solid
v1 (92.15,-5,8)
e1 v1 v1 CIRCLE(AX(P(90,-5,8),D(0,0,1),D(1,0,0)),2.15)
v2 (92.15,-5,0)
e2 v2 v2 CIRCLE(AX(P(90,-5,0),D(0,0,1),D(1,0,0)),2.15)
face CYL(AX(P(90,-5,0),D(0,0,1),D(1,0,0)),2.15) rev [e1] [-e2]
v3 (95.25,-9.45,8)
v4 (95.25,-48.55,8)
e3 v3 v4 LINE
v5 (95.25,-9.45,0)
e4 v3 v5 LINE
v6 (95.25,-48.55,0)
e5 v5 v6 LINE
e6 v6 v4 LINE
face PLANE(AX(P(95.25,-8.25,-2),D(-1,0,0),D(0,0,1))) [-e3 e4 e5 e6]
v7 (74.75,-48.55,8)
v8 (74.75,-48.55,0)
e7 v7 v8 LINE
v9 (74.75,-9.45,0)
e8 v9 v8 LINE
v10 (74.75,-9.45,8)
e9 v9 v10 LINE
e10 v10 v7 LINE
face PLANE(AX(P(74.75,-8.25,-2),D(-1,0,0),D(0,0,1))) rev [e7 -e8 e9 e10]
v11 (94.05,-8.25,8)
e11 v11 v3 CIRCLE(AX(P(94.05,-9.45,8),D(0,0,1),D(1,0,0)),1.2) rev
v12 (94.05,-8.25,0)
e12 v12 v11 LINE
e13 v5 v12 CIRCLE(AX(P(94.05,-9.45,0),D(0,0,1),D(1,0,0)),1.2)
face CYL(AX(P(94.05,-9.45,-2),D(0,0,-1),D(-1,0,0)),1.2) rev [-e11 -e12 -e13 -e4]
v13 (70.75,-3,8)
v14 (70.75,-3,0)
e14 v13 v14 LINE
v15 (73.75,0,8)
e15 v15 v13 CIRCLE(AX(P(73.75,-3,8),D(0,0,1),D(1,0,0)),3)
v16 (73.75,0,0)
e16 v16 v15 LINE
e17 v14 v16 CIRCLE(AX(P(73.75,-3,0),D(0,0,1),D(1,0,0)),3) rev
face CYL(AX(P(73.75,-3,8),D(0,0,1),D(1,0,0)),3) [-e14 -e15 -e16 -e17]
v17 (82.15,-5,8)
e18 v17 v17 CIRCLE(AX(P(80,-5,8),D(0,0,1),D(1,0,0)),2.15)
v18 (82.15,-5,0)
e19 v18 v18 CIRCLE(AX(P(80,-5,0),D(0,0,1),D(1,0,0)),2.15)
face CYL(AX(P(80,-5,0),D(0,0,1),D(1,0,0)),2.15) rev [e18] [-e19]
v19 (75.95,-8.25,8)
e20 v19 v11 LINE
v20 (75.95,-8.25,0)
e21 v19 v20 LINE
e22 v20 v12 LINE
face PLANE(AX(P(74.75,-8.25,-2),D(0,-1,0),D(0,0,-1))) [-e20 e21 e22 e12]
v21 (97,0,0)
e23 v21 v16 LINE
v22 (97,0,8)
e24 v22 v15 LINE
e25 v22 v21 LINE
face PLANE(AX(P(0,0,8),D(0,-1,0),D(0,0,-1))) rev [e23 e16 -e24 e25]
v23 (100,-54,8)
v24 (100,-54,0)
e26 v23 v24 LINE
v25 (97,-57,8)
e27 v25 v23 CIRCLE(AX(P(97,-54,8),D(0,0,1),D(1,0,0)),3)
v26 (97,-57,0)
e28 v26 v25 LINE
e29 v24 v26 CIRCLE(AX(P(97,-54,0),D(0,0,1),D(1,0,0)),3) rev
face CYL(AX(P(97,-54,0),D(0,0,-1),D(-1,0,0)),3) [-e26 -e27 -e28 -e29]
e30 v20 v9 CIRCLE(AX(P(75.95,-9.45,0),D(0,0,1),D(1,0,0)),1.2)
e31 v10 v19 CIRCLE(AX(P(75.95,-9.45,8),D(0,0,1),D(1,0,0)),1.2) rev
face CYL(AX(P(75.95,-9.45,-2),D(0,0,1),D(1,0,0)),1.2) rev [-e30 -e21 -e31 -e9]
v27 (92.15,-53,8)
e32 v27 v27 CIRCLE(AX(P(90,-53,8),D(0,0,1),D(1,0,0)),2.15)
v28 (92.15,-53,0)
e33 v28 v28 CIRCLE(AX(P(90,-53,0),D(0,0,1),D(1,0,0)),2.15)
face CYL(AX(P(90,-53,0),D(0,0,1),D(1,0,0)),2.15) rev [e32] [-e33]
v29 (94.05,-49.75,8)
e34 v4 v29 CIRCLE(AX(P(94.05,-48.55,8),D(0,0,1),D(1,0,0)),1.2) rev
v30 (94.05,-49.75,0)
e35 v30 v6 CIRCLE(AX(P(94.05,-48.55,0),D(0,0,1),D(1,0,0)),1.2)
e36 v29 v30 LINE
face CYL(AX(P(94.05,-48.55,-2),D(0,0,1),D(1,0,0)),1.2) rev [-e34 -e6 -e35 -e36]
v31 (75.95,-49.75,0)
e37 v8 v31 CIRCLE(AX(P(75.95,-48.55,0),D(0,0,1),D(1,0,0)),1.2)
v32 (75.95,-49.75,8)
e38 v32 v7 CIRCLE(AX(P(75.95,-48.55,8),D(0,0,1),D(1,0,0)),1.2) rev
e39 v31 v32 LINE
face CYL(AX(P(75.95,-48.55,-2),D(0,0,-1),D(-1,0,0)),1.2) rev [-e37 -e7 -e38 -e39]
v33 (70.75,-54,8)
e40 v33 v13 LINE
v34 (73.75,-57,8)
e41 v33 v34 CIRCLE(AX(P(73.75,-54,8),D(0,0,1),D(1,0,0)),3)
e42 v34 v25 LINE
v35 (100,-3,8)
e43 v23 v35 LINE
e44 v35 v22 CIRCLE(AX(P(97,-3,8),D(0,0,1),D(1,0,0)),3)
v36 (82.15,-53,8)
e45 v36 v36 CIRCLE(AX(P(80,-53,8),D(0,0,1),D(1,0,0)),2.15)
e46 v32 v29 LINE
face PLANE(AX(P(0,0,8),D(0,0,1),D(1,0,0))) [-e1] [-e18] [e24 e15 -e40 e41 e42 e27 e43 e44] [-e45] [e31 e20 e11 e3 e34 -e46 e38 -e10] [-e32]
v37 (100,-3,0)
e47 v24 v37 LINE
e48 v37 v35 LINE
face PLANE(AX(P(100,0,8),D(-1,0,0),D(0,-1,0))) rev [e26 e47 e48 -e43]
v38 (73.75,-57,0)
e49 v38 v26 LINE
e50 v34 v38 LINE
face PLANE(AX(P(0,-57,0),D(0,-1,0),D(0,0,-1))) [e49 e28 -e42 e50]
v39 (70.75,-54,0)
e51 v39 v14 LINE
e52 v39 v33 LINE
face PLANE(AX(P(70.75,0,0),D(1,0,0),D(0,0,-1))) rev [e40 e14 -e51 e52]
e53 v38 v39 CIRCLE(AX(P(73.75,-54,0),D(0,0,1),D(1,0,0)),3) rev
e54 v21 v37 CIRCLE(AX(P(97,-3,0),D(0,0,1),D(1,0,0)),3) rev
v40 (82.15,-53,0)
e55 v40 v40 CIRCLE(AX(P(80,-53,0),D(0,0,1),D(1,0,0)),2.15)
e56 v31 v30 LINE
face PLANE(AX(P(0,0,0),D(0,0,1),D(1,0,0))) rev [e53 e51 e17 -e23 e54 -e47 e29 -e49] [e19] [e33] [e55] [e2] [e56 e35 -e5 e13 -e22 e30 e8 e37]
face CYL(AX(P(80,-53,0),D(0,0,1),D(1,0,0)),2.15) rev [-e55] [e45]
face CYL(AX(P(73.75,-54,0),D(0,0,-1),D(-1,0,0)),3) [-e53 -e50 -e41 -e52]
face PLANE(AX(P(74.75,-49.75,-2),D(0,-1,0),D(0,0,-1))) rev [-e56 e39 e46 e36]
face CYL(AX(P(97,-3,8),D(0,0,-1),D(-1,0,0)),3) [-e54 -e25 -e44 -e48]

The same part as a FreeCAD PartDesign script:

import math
import FreeCAD as App
import Part
import Sketcher

V = App.Vector


def edges_at(feature, points):
    """Names of the edges that pass closest to the given points."""
    edges = feature.Shape.Edges
    near = lambda p: min(range(len(edges)), key=lambda i: edges[i].distToShape(Part.Vertex(*p))[0])
    return sorted({f"Edge{near(p) + 1}" for p in points})

doc = App.newDocument("Part")
body = doc.addObject("PartDesign::Body", "Body")

# Sketch on XY plane
sketch1 = doc.addObject("Sketcher::SketchObject", "Sketch")
body.addObject(sketch1)
sketch1.AttachmentSupport = (doc.XY_Plane, [""])
sketch1.MapMode = "FlatFace"
sketch1.addGeometry(Part.LineSegment(V(0, 0, 0), V(0, -100, 0)), False)
sketch1.addGeometry(Part.LineSegment(V(0, -100, 0), V(100, -100, 0)), False)
sketch1.addGeometry(Part.LineSegment(V(100, -100, 0), V(100, 0, 0)), False)
sketch1.addGeometry(Part.LineSegment(V(100, 0, 0), V(0, 0, 0)), False)
sketch1.addConstraint(Sketcher.Constraint("Coincident", 0, 2, 1, 1))
sketch1.addConstraint(Sketcher.Constraint("Coincident", 1, 2, 2, 1))
sketch1.addConstraint(Sketcher.Constraint("Coincident", 2, 2, 3, 1))
sketch1.addConstraint(Sketcher.Constraint("Coincident", 3, 2, 0, 1))
sketch1.addConstraint(Sketcher.Constraint("Vertical", 0))
sketch1.addConstraint(Sketcher.Constraint("Horizontal", 1))
sketch1.addConstraint(Sketcher.Constraint("Vertical", 2))
sketch1.addConstraint(Sketcher.Constraint("Horizontal", 3))
sketch1.addConstraint(Sketcher.Constraint("Coincident", 3, 2, -1, 1))
sketch1.addConstraint(Sketcher.Constraint("Equal", 3, 0))
sketch1.addConstraint(Sketcher.Constraint("DistanceX", 1, 1, 1, 2, 100.0))
pad1 = doc.addObject("PartDesign::Pad", "Pad")
body.addObject(pad1)
pad1.Profile = sketch1
pad1.Length = 8

# Sketch on XY plane
sketch2 = doc.addObject("Sketcher::SketchObject", "Sketch001")
body.addObject(sketch2)
sketch2.AttachmentSupport = (doc.XY_Plane, [""])
sketch2.MapMode = "FlatFace"
sketch2.AttachmentOffset = App.Placement(V(0, 0, 8), App.Rotation())
sketch2.addGeometry(Part.Circle(V(80, -53, 0), V(0, 0, 1), 2.1), False)
sketch2.addGeometry(Part.Circle(V(90, -53, 0), V(0, 0, 1), 2.1), False)
sketch2.addGeometry(Part.Circle(V(90, -5, 0), V(0, 0, 1), 2.1), False)
sketch2.addGeometry(Part.Circle(V(80, -5, 0), V(0, 0, 1), 2.1), False)
sketch2.addConstraint(Sketcher.Constraint("Equal", 0, 1))
sketch2.addConstraint(Sketcher.Constraint("Equal", 1, 2))
sketch2.addConstraint(Sketcher.Constraint("Equal", 2, 3))
sketch2.addConstraint(Sketcher.Constraint("Horizontal", 0, 3, 1, 3))
sketch2.addConstraint(Sketcher.Constraint("Horizontal", 2, 3, 3, 3))
sketch2.addConstraint(Sketcher.Constraint("Vertical", 1, 3, 2, 3))
sketch2.addConstraint(Sketcher.Constraint("Vertical", 0, 3, 3, 3))
sketch2.addConstraint(Sketcher.Constraint("Diameter", 0, 4.3))
sketch2.addConstraint(Sketcher.Constraint("DistanceX", -1, 1, 0, 3, 80.0))
sketch2.addConstraint(Sketcher.Constraint("DistanceY", 0, 3, -1, 1, 53.0))
sketch2.addConstraint(Sketcher.Constraint("DistanceX", -1, 1, 1, 3, 90.0))
sketch2.addConstraint(Sketcher.Constraint("DistanceY", 2, 3, -1, 1, 5.0))
pocket1 = doc.addObject("PartDesign::Pocket", "Pocket")
body.addObject(pocket1)
pocket1.Profile = sketch2
pocket1.Type = "ThroughAll"

# Sketch on XY plane
sketch3 = doc.addObject("Sketcher::SketchObject", "Sketch002")
body.addObject(sketch3)
sketch3.AttachmentSupport = (doc.XY_Plane, [""])
sketch3.MapMode = "FlatFace"
sketch3.AttachmentOffset = App.Placement(V(0, 0, 8), App.Rotation())
sketch3.addGeometry(Part.Circle(V(73, -95, 0), V(0, 0, 1), 2.1), False)
sketch3.addGeometry(Part.Circle(V(73, -85, 0), V(0, 0, 1), 2.1), False)
sketch3.addGeometry(Part.Circle(V(85, -85, 0), V(0, 0, 1), 2.1), False)
sketch3.addGeometry(Part.Circle(V(85, -95, 0), V(0, 0, 1), 2.1), False)
sketch3.addConstraint(Sketcher.Constraint("Equal", 0, 1))
sketch3.addConstraint(Sketcher.Constraint("Equal", 1, 2))
sketch3.addConstraint(Sketcher.Constraint("Equal", 2, 3))
sketch3.addConstraint(Sketcher.Constraint("Horizontal", 1, 3, 2, 3))
sketch3.addConstraint(Sketcher.Constraint("Horizontal", 0, 3, 3, 3))
sketch3.addConstraint(Sketcher.Constraint("Vertical", 0, 3, 1, 3))
sketch3.addConstraint(Sketcher.Constraint("Vertical", 2, 3, 3, 3))
sketch3.addConstraint(Sketcher.Constraint("Diameter", 0, 4.3))
sketch3.addConstraint(Sketcher.Constraint("DistanceX", -1, 1, 0, 3, 73.0))
sketch3.addConstraint(Sketcher.Constraint("DistanceY", 0, 3, -1, 1, 95.0))
sketch3.addConstraint(Sketcher.Constraint("DistanceY", 1, 3, -1, 1, 85.0))
sketch3.addConstraint(Sketcher.Constraint("DistanceX", -1, 1, 2, 3, 85.0))
pocket2 = doc.addObject("PartDesign::Pocket", "Pocket001")
body.addObject(pocket2)
pocket2.Profile = sketch3
pocket2.Type = "ThroughAll"

# Sketch on XY plane
sketch4 = doc.addObject("Sketcher::SketchObject", "Sketch003")
body.addObject(sketch4)
sketch4.AttachmentSupport = (doc.XY_Plane, [""])
sketch4.MapMode = "FlatFace"
sketch4.AttachmentOffset = App.Placement(V(0, 0, 8), App.Rotation())
sketch4.addGeometry(Part.ArcOfCircle(Part.Circle(V(71.5, -100, 0), V(0, 0, 1), 9.5), math.radians(0), math.radians(180)), False)
sketch4.addGeometry(Part.LineSegment(V(62, -100, 0), V(81, -100, 0)), False)
sketch4.addGeometry(Part.Circle(V(73, -95, 0), V(0, 0, 1), 2.1), False)
sketch4.addConstraint(Sketcher.Constraint("Coincident", 0, 1, 1, 2))
sketch4.addConstraint(Sketcher.Constraint("Coincident", 1, 1, 0, 2))
sketch4.addConstraint(Sketcher.Constraint("Horizontal", 1))
sketch4.addConstraint(Sketcher.Constraint("Diameter", 2, 4.3))
sketch4.addConstraint(Sketcher.Constraint("Radius", 0, 9.5))
sketch4.addConstraint(Sketcher.Constraint("DistanceY", 0, 3, -1, 1, 100.0))
sketch4.addConstraint(Sketcher.Constraint("DistanceX", -1, 1, 2, 3, 73.0))
sketch4.addConstraint(Sketcher.Constraint("DistanceY", 2, 3, -1, 1, 95.0))
sketch4.addConstraint(Sketcher.Constraint("DistanceX", -1, 1, 0, 1, 81.0))
sketch4.addConstraint(Sketcher.Constraint("DistanceY", 0, 1, -1, 1, 100.0))
pocket3 = doc.addObject("PartDesign::Pocket", "Pocket002")
body.addObject(pocket3)
pocket3.Profile = sketch4
pocket3.Type = "ThroughAll"

# Sketch on XY plane
sketch5 = doc.addObject("Sketcher::SketchObject", "Sketch004")
body.addObject(sketch5)
sketch5.AttachmentSupport = (doc.XY_Plane, [""])
sketch5.MapMode = "FlatFace"
sketch5.AttachmentOffset = App.Placement(V(0, 0, 8), App.Rotation())
sketch5.addGeometry(Part.LineSegment(V(75, -8, 0), V(75, -50, 0)), False)
sketch5.addGeometry(Part.LineSegment(V(75, -50, 0), V(95, -50, 0)), False)
sketch5.addGeometry(Part.LineSegment(V(95, -50, 0), V(95, -8, 0)), False)
sketch5.addGeometry(Part.LineSegment(V(95, -8, 0), V(75, -8, 0)), False)
sketch5.addConstraint(Sketcher.Constraint("Coincident", 0, 2, 1, 1))
sketch5.addConstraint(Sketcher.Constraint("Coincident", 1, 2, 2, 1))
sketch5.addConstraint(Sketcher.Constraint("Coincident", 2, 2, 3, 1))
sketch5.addConstraint(Sketcher.Constraint("Coincident", 3, 2, 0, 1))
sketch5.addConstraint(Sketcher.Constraint("Vertical", 0))
sketch5.addConstraint(Sketcher.Constraint("Horizontal", 1))
sketch5.addConstraint(Sketcher.Constraint("Vertical", 2))
sketch5.addConstraint(Sketcher.Constraint("Horizontal", 3))
sketch5.addConstraint(Sketcher.Constraint("DistanceX", 1, 1, 1, 2, 20.5))
sketch5.addConstraint(Sketcher.Constraint("DistanceY", 0, 2, 0, 1, 41.5))
sketch5.addConstraint(Sketcher.Constraint("DistanceX", -1, 1, 0, 2, 74.75))
sketch5.addConstraint(Sketcher.Constraint("DistanceY", 0, 2, -1, 1, 49.75))
pocket4 = doc.addObject("PartDesign::Pocket", "Pocket003")
body.addObject(pocket4)
pocket4.Profile = sketch5
pocket4.Length = 10

# Sketch on XY plane
sketch6 = doc.addObject("Sketcher::SketchObject", "Sketch005")
body.addObject(sketch6)
sketch6.AttachmentSupport = (doc.XY_Plane, [""])
sketch6.MapMode = "FlatFace"
sketch6.AttachmentOffset = App.Placement(V(0, 0, 8), App.Rotation())
sketch6.addGeometry(Part.LineSegment(V(0, 0, 0), V(0, -100, 0)), False)
sketch6.addGeometry(Part.LineSegment(V(0, -100, 0), V(55, -100, 0)), False)
sketch6.addGeometry(Part.LineSegment(V(55, -100, 0), V(55, 0, 0)), False)
sketch6.addGeometry(Part.LineSegment(V(55, 0, 0), V(0, 0, 0)), False)
sketch6.addConstraint(Sketcher.Constraint("Coincident", 0, 2, 1, 1))
sketch6.addConstraint(Sketcher.Constraint("Coincident", 1, 2, 2, 1))
sketch6.addConstraint(Sketcher.Constraint("Coincident", 2, 2, 3, 1))
sketch6.addConstraint(Sketcher.Constraint("Coincident", 3, 2, 0, 1))
sketch6.addConstraint(Sketcher.Constraint("Vertical", 0))
sketch6.addConstraint(Sketcher.Constraint("Horizontal", 1))
sketch6.addConstraint(Sketcher.Constraint("Vertical", 2))
sketch6.addConstraint(Sketcher.Constraint("Horizontal", 3))
sketch6.addConstraint(Sketcher.Constraint("Coincident", 3, 2, -1, 1))
sketch6.addConstraint(Sketcher.Constraint("DistanceX", 1, 1, 1, 2, 55.0))
sketch6.addConstraint(Sketcher.Constraint("DistanceY", 0, 2, 0, 1, 100.0))
pocket5 = doc.addObject("PartDesign::Pocket", "Pocket004")
body.addObject(pocket5)
pocket5.Profile = sketch6
pocket5.Length = 10
doc.recompute()

fillet = doc.addObject("PartDesign::Fillet", "Fillet")
body.addObject(fillet)
fillet.Base = (pocket5, edges_at(pocket5, [
    (95.25, -49.75, 4),
    (74.75, -49.75, 4),
    (74.75, -8.25, 4),
    (95.25, -8.25, 4),
]))
fillet.Radius = 1.2

# Sketch on XY plane
sketch7 = doc.addObject("Sketcher::SketchObject", "Sketch006")
body.addObject(sketch7)
sketch7.AttachmentSupport = (doc.XY_Plane, [""])
sketch7.MapMode = "FlatFace"
sketch7.AttachmentOffset = App.Placement(V(0, 0, 8), App.Rotation())
sketch7.addGeometry(Part.Circle(V(59, -84, 0), V(0, 0, 1), 1.6), False)
sketch7.addConstraint(Sketcher.Constraint("Diameter", 0, 3.3))
sketch7.addConstraint(Sketcher.Constraint("DistanceX", -1, 1, 0, 3, 59.0))
sketch7.addConstraint(Sketcher.Constraint("DistanceY", 0, 3, -1, 1, 84.0))
pocket6 = doc.addObject("PartDesign::Pocket", "Pocket005")
body.addObject(pocket6)
pocket6.Profile = sketch7
pocket6.Type = "ThroughAll"

# Sketch on XY plane
sketch8 = doc.addObject("Sketcher::SketchObject", "Sketch007")
body.addObject(sketch8)
sketch8.AttachmentSupport = (doc.XY_Plane, [""])
sketch8.MapMode = "FlatFace"
sketch8.AttachmentOffset = App.Placement(V(0, 0, 8), App.Rotation())
sketch8.addGeometry(Part.LineSegment(V(72, -90, 0), V(55, -90, 0)), False)
sketch8.addGeometry(Part.LineSegment(V(55, -90, 0), V(55, -100, 0)), False)
sketch8.addGeometry(Part.LineSegment(V(55, -100, 0), V(62, -100, 0)), False)
sketch8.addGeometry(Part.ArcOfCircle(Part.Circle(V(72, -100, 0), V(0, 0, 1), 10), math.radians(90), math.radians(180)), False)
sketch8.addGeometry(Part.LineSegment(V(55, 0, 0), V(55, -78, 0)), False)
sketch8.addGeometry(Part.LineSegment(V(55, -78, 0), V(71, -78, 0)), False)
sketch8.addGeometry(Part.LineSegment(V(71, -78, 0), V(71, 0, 0)), False)
sketch8.addGeometry(Part.LineSegment(V(71, 0, 0), V(55, 0, 0)), False)
sketch8.addConstraint(Sketcher.Constraint("Coincident", 0, 2, 1, 1))
sketch8.addConstraint(Sketcher.Constraint("Coincident", 1, 2, 2, 1))
sketch8.addConstraint(Sketcher.Constraint("Coincident", 2, 2, 3, 2))
sketch8.addConstraint(Sketcher.Constraint("Tangent", 3, 1, 0, 1))
sketch8.addConstraint(Sketcher.Constraint("Coincident", 4, 2, 5, 1))
sketch8.addConstraint(Sketcher.Constraint("Coincident", 5, 2, 6, 1))
sketch8.addConstraint(Sketcher.Constraint("Coincident", 6, 2, 7, 1))
sketch8.addConstraint(Sketcher.Constraint("Coincident", 7, 2, 4, 1))
sketch8.addConstraint(Sketcher.Constraint("Horizontal", 0))
sketch8.addConstraint(Sketcher.Constraint("Vertical", 1))
sketch8.addConstraint(Sketcher.Constraint("Horizontal", 2))
sketch8.addConstraint(Sketcher.Constraint("Vertical", 4))
sketch8.addConstraint(Sketcher.Constraint("Horizontal", 5))
sketch8.addConstraint(Sketcher.Constraint("Vertical", 6))
sketch8.addConstraint(Sketcher.Constraint("Horizontal", 7))
sketch8.addConstraint(Sketcher.Constraint("PointOnObject", 6, 2, -1))
sketch8.addConstraint(Sketcher.Constraint("Horizontal", 3, 3, 1, 2))
sketch8.addConstraint(Sketcher.Constraint("Vertical", 1, 2, 4, 2))
sketch8.addConstraint(Sketcher.Constraint("Radius", 3, 9.5))
sketch8.addConstraint(Sketcher.Constraint("DistanceX", 2, 1, 2, 2, 7.0))
sketch8.addConstraint(Sketcher.Constraint("DistanceY", 4, 2, 4, 1, 78.5))
sketch8.addConstraint(Sketcher.Constraint("DistanceY", 3, 3, -1, 1, 100.0))
sketch8.addConstraint(Sketcher.Constraint("DistanceX", -1, 1, 0, 2, 55.0))
sketch8.addConstraint(Sketcher.Constraint("DistanceX", 5, 1, 5, 2, 15.75))
pocket7 = doc.addObject("PartDesign::Pocket", "Pocket006")
body.addObject(pocket7)
pocket7.Profile = sketch8
pocket7.Type = "ThroughAll"
doc.recompute()

fillet2 = doc.addObject("PartDesign::Fillet", "Fillet001")
body.addObject(fillet2)
fillet2.Base = (pocket7, edges_at(pocket7, [(70.75, -78.5, 4)]))
fillet2.Radius = 10
doc.recompute()

fillet3 = doc.addObject("PartDesign::Fillet", "Fillet002")
body.addObject(fillet3)
fillet3.Base = (fillet2, edges_at(fillet2, [
    (55, -90.5, 4),
    (55, -78.5, 4),
    (70.75, 0, 4),
    (81, -100, 4),
    (100, 0, 4),
    (100, -100, 4),
]))
fillet3.Radius = 3

# Sketch on XY plane
sketch9 = doc.addObject("Sketcher::SketchObject", "Sketch008")
body.addObject(sketch9)
sketch9.AttachmentSupport = (doc.XY_Plane, [""])
sketch9.MapMode = "FlatFace"
sketch9.AttachmentOffset = App.Placement(V(0, 0, 8), App.Rotation())
sketch9.addGeometry(Part.LineSegment(V(100, -57, 0), V(70.8, -57, 0)), False)
sketch9.addGeometry(Part.LineSegment(V(70.8, -57, 0), V(70.8, -68.5, 0)), False)
sketch9.addGeometry(Part.ArcOfCircle(Part.Circle(V(60.8, -68.5, 0), V(0, 0, 1), 10), math.radians(-90), math.radians(0)), False)
sketch9.addGeometry(Part.LineSegment(V(60.8, -78.5, 0), V(58, -78.5, 0)), False)
sketch9.addGeometry(Part.ArcOfCircle(Part.Circle(V(58, -81.5, 0), V(0, 0, 1), 3), math.radians(90), math.radians(180)), False)
sketch9.addGeometry(Part.LineSegment(V(55, -81.5, 0), V(55, -87.5, 0)), False)
sketch9.addGeometry(Part.ArcOfCircle(Part.Circle(V(58, -87.5, 0), V(0, 0, 1), 3), math.radians(180), math.radians(270)), False)
sketch9.addGeometry(Part.LineSegment(V(58, -90.5, 0), V(71.5, -90.5, 0)), False)
sketch9.addGeometry(Part.ArcOfCircle(Part.Circle(V(71.5, -100, 0), V(0, 0, 1), 9.5), math.radians(14), math.radians(90)), False)
sketch9.addGeometry(Part.ArcOfCircle(Part.Circle(V(83.6, -97, 0), V(0, 0, 1), 3), math.radians(-166), math.radians(-90)), False)
sketch9.addGeometry(Part.LineSegment(V(83.6, -100, 0), V(97, -100, 0)), False)
sketch9.addGeometry(Part.ArcOfCircle(Part.Circle(V(97, -97, 0), V(0, 0, 1), 3), math.radians(-90), math.radians(0)), False)
sketch9.addGeometry(Part.LineSegment(V(100, -97, 0), V(100, -57, 0)), False)
sketch9.addGeometry(Part.Circle(V(85, -95, 0), V(0, 0, 1), 2.1), False)
sketch9.addGeometry(Part.Circle(V(59, -84, 0), V(0, 0, 1), 1.6), False)
sketch9.addGeometry(Part.Circle(V(73, -85, 0), V(0, 0, 1), 2.1), False)
sketch9.addGeometry(Part.Circle(V(85, -85, 0), V(0, 0, 1), 2.1), False)
sketch9.addConstraint(Sketcher.Constraint("Coincident", 0, 2, 1, 1))
sketch9.addConstraint(Sketcher.Constraint("Tangent", 1, 2, 2, 2))
sketch9.addConstraint(Sketcher.Constraint("Tangent", 2, 1, 3, 1))
sketch9.addConstraint(Sketcher.Constraint("Tangent", 3, 2, 4, 1))
sketch9.addConstraint(Sketcher.Constraint("Tangent", 4, 2, 5, 1))
sketch9.addConstraint(Sketcher.Constraint("Tangent", 5, 2, 6, 1))
sketch9.addConstraint(Sketcher.Constraint("Tangent", 6, 2, 7, 1))
sketch9.addConstraint(Sketcher.Constraint("Tangent", 7, 2, 8, 2))
sketch9.addConstraint(Sketcher.Constraint("Tangent", 8, 1, 9, 1))
sketch9.addConstraint(Sketcher.Constraint("Tangent", 9, 2, 10, 1))
sketch9.addConstraint(Sketcher.Constraint("Tangent", 10, 2, 11, 1))
sketch9.addConstraint(Sketcher.Constraint("Tangent", 11, 2, 12, 1))
sketch9.addConstraint(Sketcher.Constraint("Coincident", 12, 2, 0, 1))
sketch9.addConstraint(Sketcher.Constraint("Horizontal", 0))
sketch9.addConstraint(Sketcher.Constraint("Vertical", 1))
sketch9.addConstraint(Sketcher.Constraint("Horizontal", 3))
sketch9.addConstraint(Sketcher.Constraint("Vertical", 5))
sketch9.addConstraint(Sketcher.Constraint("Horizontal", 7))
sketch9.addConstraint(Sketcher.Constraint("Horizontal", 10))
sketch9.addConstraint(Sketcher.Constraint("Vertical", 12))
sketch9.addConstraint(Sketcher.Constraint("Equal", 4, 6))
sketch9.addConstraint(Sketcher.Constraint("Equal", 6, 9))
sketch9.addConstraint(Sketcher.Constraint("Equal", 9, 11))
sketch9.addConstraint(Sketcher.Constraint("Equal", 13, 15))
sketch9.addConstraint(Sketcher.Constraint("Equal", 15, 16))
sketch9.addConstraint(Sketcher.Constraint("Horizontal", 15, 3, 16, 3))
sketch9.addConstraint(Sketcher.Constraint("Horizontal", 8, 3, 9, 2))
sketch9.addConstraint(Sketcher.Constraint("Vertical", 13, 3, 16, 3))
sketch9.addConstraint(Sketcher.Constraint("Radius", 2, 10.0))
sketch9.addConstraint(Sketcher.Constraint("Radius", 4, 3.0))
sketch9.addConstraint(Sketcher.Constraint("Diameter", 13, 4.3))
sketch9.addConstraint(Sketcher.Constraint("Diameter", 14, 3.3))
sketch9.addConstraint(Sketcher.Constraint("Radius", 8, 9.5))
sketch9.addConstraint(Sketcher.Constraint("DistanceY", 5, 2, 5, 1, 6.0))
sketch9.addConstraint(Sketcher.Constraint("DistanceY", 12, 1, 12, 2, 40.0))
sketch9.addConstraint(Sketcher.Constraint("DistanceX", 7, 1, 7, 2, 13.5))
sketch9.addConstraint(Sketcher.Constraint("DistanceX", -1, 1, 4, 3, 58.0))
sketch9.addConstraint(Sketcher.Constraint("DistanceY", 8, 3, -1, 1, 100.0))
sketch9.addConstraint(Sketcher.Constraint("DistanceX", -1, 1, 11, 3, 97.0))
sketch9.addConstraint(Sketcher.Constraint("DistanceX", -1, 1, 13, 3, 85.0))
sketch9.addConstraint(Sketcher.Constraint("DistanceY", 13, 3, -1, 1, 95.0))
sketch9.addConstraint(Sketcher.Constraint("DistanceX", -1, 1, 14, 3, 59.0))
sketch9.addConstraint(Sketcher.Constraint("DistanceY", 14, 3, -1, 1, 84.0))
sketch9.addConstraint(Sketcher.Constraint("DistanceX", -1, 1, 15, 3, 73.0))
sketch9.addConstraint(Sketcher.Constraint("DistanceY", 15, 3, -1, 1, 85.0))
sketch9.addConstraint(Sketcher.Constraint("DistanceX", 0, 2, 0, 1, 29.25))
pocket8 = doc.addObject("PartDesign::Pocket", "Pocket007")
body.addObject(pocket8)
pocket8.Profile = sketch9
pocket8.Type = "ThroughAll"
doc.recompute()

fillet4 = doc.addObject("PartDesign::Fillet", "Fillet003")
body.addObject(fillet4)
fillet4.Base = (pocket8, edges_at(pocket8, [(70.75, -57, 4), (100, -57, 4)]))
fillet4.Radius = 3

doc.recompute()
